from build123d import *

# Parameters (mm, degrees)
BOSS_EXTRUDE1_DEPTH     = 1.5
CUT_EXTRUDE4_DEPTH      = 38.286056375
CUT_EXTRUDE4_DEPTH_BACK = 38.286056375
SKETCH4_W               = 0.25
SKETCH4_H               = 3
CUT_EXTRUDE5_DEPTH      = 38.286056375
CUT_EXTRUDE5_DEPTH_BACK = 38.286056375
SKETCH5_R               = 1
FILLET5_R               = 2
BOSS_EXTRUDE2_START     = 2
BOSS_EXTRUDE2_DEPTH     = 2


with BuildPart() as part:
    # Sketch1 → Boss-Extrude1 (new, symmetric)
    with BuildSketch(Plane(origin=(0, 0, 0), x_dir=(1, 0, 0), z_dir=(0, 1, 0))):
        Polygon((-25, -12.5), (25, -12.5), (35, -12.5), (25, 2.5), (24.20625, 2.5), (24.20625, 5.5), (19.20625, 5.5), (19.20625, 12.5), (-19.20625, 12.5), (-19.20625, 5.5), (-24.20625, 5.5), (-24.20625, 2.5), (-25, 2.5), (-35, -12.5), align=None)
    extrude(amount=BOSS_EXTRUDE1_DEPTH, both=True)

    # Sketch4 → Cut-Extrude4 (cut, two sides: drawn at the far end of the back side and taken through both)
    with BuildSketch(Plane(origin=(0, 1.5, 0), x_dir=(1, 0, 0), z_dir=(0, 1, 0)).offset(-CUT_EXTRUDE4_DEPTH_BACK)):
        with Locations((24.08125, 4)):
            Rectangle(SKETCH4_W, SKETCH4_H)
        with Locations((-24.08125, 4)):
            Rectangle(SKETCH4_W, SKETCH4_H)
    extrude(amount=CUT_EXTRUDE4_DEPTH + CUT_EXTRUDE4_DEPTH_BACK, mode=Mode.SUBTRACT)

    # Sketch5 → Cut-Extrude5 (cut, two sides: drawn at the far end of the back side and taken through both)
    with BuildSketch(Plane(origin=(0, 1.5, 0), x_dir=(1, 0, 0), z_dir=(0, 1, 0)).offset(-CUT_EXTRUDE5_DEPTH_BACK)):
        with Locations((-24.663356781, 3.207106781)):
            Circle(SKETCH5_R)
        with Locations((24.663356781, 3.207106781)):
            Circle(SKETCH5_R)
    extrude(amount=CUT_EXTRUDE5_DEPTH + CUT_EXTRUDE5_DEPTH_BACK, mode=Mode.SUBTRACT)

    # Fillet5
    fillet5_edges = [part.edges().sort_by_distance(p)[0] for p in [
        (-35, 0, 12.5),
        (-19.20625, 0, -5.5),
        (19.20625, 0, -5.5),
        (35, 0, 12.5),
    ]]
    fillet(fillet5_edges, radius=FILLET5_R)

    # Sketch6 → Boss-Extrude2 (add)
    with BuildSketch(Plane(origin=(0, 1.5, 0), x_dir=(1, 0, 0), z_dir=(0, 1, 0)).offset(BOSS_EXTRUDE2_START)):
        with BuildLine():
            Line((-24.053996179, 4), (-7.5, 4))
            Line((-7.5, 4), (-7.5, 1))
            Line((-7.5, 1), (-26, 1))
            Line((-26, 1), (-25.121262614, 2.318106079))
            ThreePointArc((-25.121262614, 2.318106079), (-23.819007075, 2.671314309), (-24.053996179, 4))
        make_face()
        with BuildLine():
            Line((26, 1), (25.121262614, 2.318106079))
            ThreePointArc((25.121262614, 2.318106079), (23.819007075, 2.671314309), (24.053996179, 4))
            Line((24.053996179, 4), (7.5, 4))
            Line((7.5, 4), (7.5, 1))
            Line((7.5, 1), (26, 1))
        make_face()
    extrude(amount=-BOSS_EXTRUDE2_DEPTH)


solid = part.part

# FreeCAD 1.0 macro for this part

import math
import FreeCAD as App
import Part
import Sketcher
from FreeCAD import Vector
Q = App.Units.Quantity


def edges_at(feature, points):
    """Names of the edges that pass closest to the given points."""
    edges = feature.Shape.Edges
    near = lambda p: min(range(len(edges)), key=lambda i: edges[i].distToShape(Part.Vertex(*p))[0])
    return sorted({f"Edge{near(p) + 1}" for p in points})

doc = App.newDocument("Part")
body = doc.addObject("PartDesign::Body", "Body")

# Sketch on XZ plane
sketch1 = body.newObject("Sketcher::SketchObject", "Sketch")
sketch1.AttachmentSupport = (doc.getObject("XZ_Plane"), [""])
sketch1.MapMode = "FlatFace"
sketch1.addGeometry(Part.LineSegment(Vector(35, 12.5, 0), Vector(25, -2.5, 0)), False)
sketch1.addGeometry(Part.LineSegment(Vector(25, -2.5, 0), Vector(24.2, -2.5, 0)), False)
sketch1.addGeometry(Part.LineSegment(Vector(24.2, -2.5, 0), Vector(24.2, -5.5, 0)), False)
sketch1.addGeometry(Part.LineSegment(Vector(24.2, -5.5, 0), Vector(19.2, -5.5, 0)), False)
sketch1.addGeometry(Part.LineSegment(Vector(19.2, -5.5, 0), Vector(19.2, -12.5, 0)), False)
sketch1.addGeometry(Part.LineSegment(Vector(19.2, -12.5, 0), Vector(-19.2, -12.5, 0)), False)
sketch1.addGeometry(Part.LineSegment(Vector(-19.2, -12.5, 0), Vector(-19.2, -5.5, 0)), False)
sketch1.addGeometry(Part.LineSegment(Vector(-19.2, -5.5, 0), Vector(-24.2, -5.5, 0)), False)
sketch1.addGeometry(Part.LineSegment(Vector(-24.2, -5.5, 0), Vector(-24.2, -2.5, 0)), False)
sketch1.addGeometry(Part.LineSegment(Vector(-24.2, -2.5, 0), Vector(-25, -2.5, 0)), False)
sketch1.addGeometry(Part.LineSegment(Vector(-25, -2.5, 0), Vector(-35, 12.5, 0)), False)
sketch1.addGeometry(Part.LineSegment(Vector(-35, 12.5, 0), Vector(35, 12.5, 0)), False)
sketch1.addConstraint(Sketcher.Constraint("Coincident", 0, 2, 1, 1))
sketch1.addConstraint(Sketcher.Constraint("Coincident", 1, 2, 2, 1))
sketch1.addConstraint(Sketcher.Constraint("Coincident", 2, 2, 3, 1))
sketch1.addConstraint(Sketcher.Constraint("Coincident", 3, 2, 4, 1))
sketch1.addConstraint(Sketcher.Constraint("Coincident", 4, 2, 5, 1))
sketch1.addConstraint(Sketcher.Constraint("Coincident", 5, 2, 6, 1))
sketch1.addConstraint(Sketcher.Constraint("Coincident", 6, 2, 7, 1))
sketch1.addConstraint(Sketcher.Constraint("Coincident", 7, 2, 8, 1))
sketch1.addConstraint(Sketcher.Constraint("Coincident", 8, 2, 9, 1))
sketch1.addConstraint(Sketcher.Constraint("Coincident", 9, 2, 10, 1))
sketch1.addConstraint(Sketcher.Constraint("Coincident", 10, 2, 11, 1))
sketch1.addConstraint(Sketcher.Constraint("Coincident", 11, 2, 0, 1))
sketch1.addConstraint(Sketcher.Constraint("Horizontal", 1))
sketch1.addConstraint(Sketcher.Constraint("Vertical", 2))
sketch1.addConstraint(Sketcher.Constraint("Horizontal", 3))
sketch1.addConstraint(Sketcher.Constraint("Vertical", 4))
sketch1.addConstraint(Sketcher.Constraint("Horizontal", 5))
sketch1.addConstraint(Sketcher.Constraint("Vertical", 6))
sketch1.addConstraint(Sketcher.Constraint("Horizontal", 7))
sketch1.addConstraint(Sketcher.Constraint("Vertical", 8))
sketch1.addConstraint(Sketcher.Constraint("Horizontal", 9))
sketch1.addConstraint(Sketcher.Constraint("Horizontal", 11))
sketch1.addConstraint(Sketcher.Constraint("Symmetric", 3, 2, 6, 2, -2))
sketch1.addConstraint(Sketcher.Constraint("Symmetric", 1, 2, 8, 2, -2))
sketch1.addConstraint(Sketcher.Constraint("Equal", 1, 9))
sketch1.addConstraint(Sketcher.Constraint("Equal", 0, 10))
sketch1.addConstraint(Sketcher.Constraint("DistanceX", 3, 2, 3, 1, Q("5 mm")))
sketch1.addConstraint(Sketcher.Constraint("DistanceX", 11, 1, 11, 2, Q("70 mm")))
sketch1.addConstraint(Sketcher.Constraint("DistanceY", 2, 2, 2, 1, Q("3 mm")))
sketch1.addConstraint(Sketcher.Constraint("DistanceY", 4, 2, 4, 1, Q("7 mm")))
sketch1.addConstraint(Sketcher.Constraint("DistanceX", -1, 1, 0, 2, Q("25 mm")))
sketch1.addConstraint(Sketcher.Constraint("DistanceY", 9, 2, 10, 2, Q("15 mm")))
sketch1.addConstraint(Sketcher.Constraint("DistanceY", 0, 2, -1, 1, Q("2.5 mm")))
sketch1.addConstraint(Sketcher.Constraint("DistanceX", 5, 2, 5, 1, Q("38.4125 mm")))
pad1 = body.newObject("PartDesign::Pad", "Pad")
pad1.Profile = sketch1
pad1.Length = 3
pad1.Midplane = True

# Sketch on XZ plane
sketch2 = body.newObject("Sketcher::SketchObject", "Sketch001")
sketch2.AttachmentSupport = (doc.getObject("XZ_Plane"), [""])
sketch2.MapMode = "FlatFace"
sketch2.AttachmentOffset = App.Placement(Vector(0, 0, -1.5), App.Rotation())
sketch2.addGeometry(Part.LineSegment(Vector(23.96, -5.5, 0), Vector(23.96, -2.5, 0)), False)
sketch2.addGeometry(Part.LineSegment(Vector(23.96, -2.5, 0), Vector(24.21, -2.5, 0)), False)
sketch2.addGeometry(Part.LineSegment(Vector(24.21, -2.5, 0), Vector(24.21, -5.5, 0)), False)
sketch2.addGeometry(Part.LineSegment(Vector(24.21, -5.5, 0), Vector(23.96, -5.5, 0)), False)
sketch2.addGeometry(Part.LineSegment(Vector(-24.21, -5.5, 0), Vector(-24.21, -2.5, 0)), False)
sketch2.addGeometry(Part.LineSegment(Vector(-24.21, -2.5, 0), Vector(-23.96, -2.5, 0)), False)
sketch2.addGeometry(Part.LineSegment(Vector(-23.96, -2.5, 0), Vector(-23.96, -5.5, 0)), False)
sketch2.addGeometry(Part.LineSegment(Vector(-23.96, -5.5, 0), Vector(-24.21, -5.5, 0)), False)
sketch2.addConstraint(Sketcher.Constraint("Coincident", 0, 2, 1, 1))
sketch2.addConstraint(Sketcher.Constraint("Coincident", 1, 2, 2, 1))
sketch2.addConstraint(Sketcher.Constraint("Coincident", 2, 2, 3, 1))
sketch2.addConstraint(Sketcher.Constraint("Coincident", 3, 2, 0, 1))
sketch2.addConstraint(Sketcher.Constraint("Coincident", 4, 2, 5, 1))
sketch2.addConstraint(Sketcher.Constraint("Coincident", 5, 2, 6, 1))
sketch2.addConstraint(Sketcher.Constraint("Coincident", 6, 2, 7, 1))
sketch2.addConstraint(Sketcher.Constraint("Coincident", 7, 2, 4, 1))
sketch2.addConstraint(Sketcher.Constraint("Vertical", 0))
sketch2.addConstraint(Sketcher.Constraint("Horizontal", 1))
sketch2.addConstraint(Sketcher.Constraint("Vertical", 2))
sketch2.addConstraint(Sketcher.Constraint("Horizontal", 3))
sketch2.addConstraint(Sketcher.Constraint("Vertical", 4))
sketch2.addConstraint(Sketcher.Constraint("Horizontal", 5))
sketch2.addConstraint(Sketcher.Constraint("Vertical", 6))
sketch2.addConstraint(Sketcher.Constraint("Horizontal", 7))
sketch2.addConstraint(Sketcher.Constraint("Symmetric", 1, 2, 4, 2, -2))
sketch2.addConstraint(Sketcher.Constraint("Symmetric", 3, 2, 6, 2, -2))
sketch2.addConstraint(Sketcher.Constraint("DistanceY", 0, 1, 0, 2, Q("3 mm")))
sketch2.addConstraint(Sketcher.Constraint("DistanceX", 1, 1, 1, 2, Q("0.25 mm")))
sketch2.addConstraint(Sketcher.Constraint("DistanceY", 0, 2, -1, 1, Q("2.5 mm")))
sketch2.addConstraint(Sketcher.Constraint("DistanceX", 4, 2, 0, 2, Q("48.1625 mm")))
pocket1 = body.newObject("PartDesign::Pocket", "Pocket")
pocket1.Profile = sketch2
pocket1.Type = "ThroughAll"
pocket1.Midplane = True

# Sketch on XZ plane
sketch3 = body.newObject("Sketcher::SketchObject", "Sketch002")
sketch3.AttachmentSupport = (doc.getObject("XZ_Plane"), [""])
sketch3.MapMode = "FlatFace"
sketch3.AttachmentOffset = App.Placement(Vector(0, 0, -1.5), App.Rotation())
sketch3.addGeometry(Part.Circle(Vector(-24.7, -3.2, 0), Vector(0, 0, 1), 1), False)
sketch3.addGeometry(Part.Circle(Vector(24.7, -3.2, 0), Vector(0, 0, 1), 1), False)
sketch3.addConstraint(Sketcher.Constraint("Equal", 0, 1))
sketch3.addConstraint(Sketcher.Constraint("Symmetric", 0, 3, 1, 3, -2))
sketch3.addConstraint(Sketcher.Constraint("Diameter", 0, Q("2 mm")))
sketch3.addConstraint(Sketcher.Constraint("DistanceX", 0, 3, -1, 1, Q("24.663357 mm")))
sketch3.addConstraint(Sketcher.Constraint("DistanceY", 0, 3, -1, 1, Q("3.207107 mm")))
pocket2 = body.newObject("PartDesign::Pocket", "Pocket001")
pocket2.Profile = sketch3
pocket2.Type = "ThroughAll"
pocket2.Midplane = True
doc.recompute()

fillet = body.newObject("PartDesign::Fillet", "Fillet")
fillet.Base = (pocket2, edges_at(pocket2, [
    (-35, 0, 12.5),
    (-19.206, 0, -5.5),
    (19.206, 0, -5.5),
    (35, 0, 12.5),
]))
fillet.Radius = 2

# Sketch on XZ plane
sketch4 = body.newObject("Sketcher::SketchObject", "Sketch003")
sketch4.AttachmentSupport = (doc.getObject("XZ_Plane"), [""])
sketch4.MapMode = "FlatFace"
sketch4.AttachmentOffset = App.Placement(Vector(0, 0, -3.5), App.Rotation())
sketch4.addGeometry(Part.LineSegment(Vector(-7.5, -4, 0), Vector(-24.1, -4, 0)), False)
sketch4.addGeometry(Part.ArcOfCircle(Part.Circle(Vector(-24.7, -3.2, 0), Vector(0, 0, 1), 1), math.radians(-52), math.radians(117)), False)
sketch4.addGeometry(Part.LineSegment(Vector(-25.1, -2.3, 0), Vector(-26, -1, 0)), False)
sketch4.addGeometry(Part.LineSegment(Vector(-26, -1, 0), Vector(-7.5, -1, 0)), False)
sketch4.addGeometry(Part.LineSegment(Vector(-7.5, -1, 0), Vector(-7.5, -4, 0)), False)
sketch4.addGeometry(Part.LineSegment(Vector(26, -1, 0), Vector(25.1, -2.3, 0)), False)
sketch4.addGeometry(Part.ArcOfCircle(Part.Circle(Vector(24.7, -3.2, 0), Vector(0, 0, 1), 1), math.radians(63), math.radians(232)), False)
sketch4.addGeometry(Part.LineSegment(Vector(24.1, -4, 0), Vector(7.5, -4, 0)), False)
sketch4.addGeometry(Part.LineSegment(Vector(7.5, -4, 0), Vector(7.5, -1, 0)), False)
sketch4.addGeometry(Part.LineSegment(Vector(7.5, -1, 0), Vector(26, -1, 0)), False)
sketch4.addConstraint(Sketcher.Constraint("Coincident", 0, 2, 1, 1))
sketch4.addConstraint(Sketcher.Constraint("Coincident", 1, 2, 2, 1))
sketch4.addConstraint(Sketcher.Constraint("Coincident", 2, 2, 3, 1))
sketch4.addConstraint(Sketcher.Constraint("Coincident", 3, 2, 4, 1))
sketch4.addConstraint(Sketcher.Constraint("Coincident", 4, 2, 0, 1))
sketch4.addConstraint(Sketcher.Constraint("Coincident", 5, 2, 6, 1))
sketch4.addConstraint(Sketcher.Constraint("Coincident", 6, 2, 7, 1))
sketch4.addConstraint(Sketcher.Constraint("Coincident", 7, 2, 8, 1))
sketch4.addConstraint(Sketcher.Constraint("Coincident", 8, 2, 9, 1))
sketch4.addConstraint(Sketcher.Constraint("Coincident", 9, 2, 5, 1))
sketch4.addConstraint(Sketcher.Constraint("Horizontal", 0))
sketch4.addConstraint(Sketcher.Constraint("Horizontal", 3))
sketch4.addConstraint(Sketcher.Constraint("Vertical", 4))
sketch4.addConstraint(Sketcher.Constraint("Horizontal", 7))
sketch4.addConstraint(Sketcher.Constraint("Vertical", 8))
sketch4.addConstraint(Sketcher.Constraint("Horizontal", 9))
sketch4.addConstraint(Sketcher.Constraint("Equal", 1, 6))
sketch4.addConstraint(Sketcher.Constraint("Symmetric", 1, 3, 6, 3, -2))
sketch4.addConstraint(Sketcher.Constraint("Symmetric", 4, 2, 7, 2, -2))
sketch4.addConstraint(Sketcher.Constraint("Symmetric", 2, 2, 9, 2, -2))
sketch4.addConstraint(Sketcher.Constraint("Horizontal", 1, 2, 5, 2))
sketch4.addConstraint(Sketcher.Constraint("Radius", 1, Q("1 mm")))
sketch4.addConstraint(Sketcher.Constraint("DistanceY", 4, 2, 4, 1, Q("3 mm")))
sketch4.addConstraint(Sketcher.Constraint("DistanceX", 3, 1, 3, 2, Q("18.5 mm")))
sketch4.addConstraint(Sketcher.Constraint("DistanceY", 0, 2, -1, 1, Q("4 mm")))
sketch4.addConstraint(Sketcher.Constraint("DistanceX", 2, 2, -1, 1, Q("26 mm")))
sketch4.addConstraint(Sketcher.Constraint("DistanceY", 1, 3, 1, 2, Q("0.889001 mm")))
sketch4.addConstraint(Sketcher.Constraint("DistanceX", 0, 2, 0, 1, Q("16.553996 mm")))
sketch4.addConstraint(Sketcher.Constraint("DistanceX", 1, 3, 0, 2, Q("0.609361 mm")))
pad2 = body.newObject("PartDesign::Pad", "Pad001")
pad2.Profile = sketch4
pad2.Length = 2

doc.recompute()
